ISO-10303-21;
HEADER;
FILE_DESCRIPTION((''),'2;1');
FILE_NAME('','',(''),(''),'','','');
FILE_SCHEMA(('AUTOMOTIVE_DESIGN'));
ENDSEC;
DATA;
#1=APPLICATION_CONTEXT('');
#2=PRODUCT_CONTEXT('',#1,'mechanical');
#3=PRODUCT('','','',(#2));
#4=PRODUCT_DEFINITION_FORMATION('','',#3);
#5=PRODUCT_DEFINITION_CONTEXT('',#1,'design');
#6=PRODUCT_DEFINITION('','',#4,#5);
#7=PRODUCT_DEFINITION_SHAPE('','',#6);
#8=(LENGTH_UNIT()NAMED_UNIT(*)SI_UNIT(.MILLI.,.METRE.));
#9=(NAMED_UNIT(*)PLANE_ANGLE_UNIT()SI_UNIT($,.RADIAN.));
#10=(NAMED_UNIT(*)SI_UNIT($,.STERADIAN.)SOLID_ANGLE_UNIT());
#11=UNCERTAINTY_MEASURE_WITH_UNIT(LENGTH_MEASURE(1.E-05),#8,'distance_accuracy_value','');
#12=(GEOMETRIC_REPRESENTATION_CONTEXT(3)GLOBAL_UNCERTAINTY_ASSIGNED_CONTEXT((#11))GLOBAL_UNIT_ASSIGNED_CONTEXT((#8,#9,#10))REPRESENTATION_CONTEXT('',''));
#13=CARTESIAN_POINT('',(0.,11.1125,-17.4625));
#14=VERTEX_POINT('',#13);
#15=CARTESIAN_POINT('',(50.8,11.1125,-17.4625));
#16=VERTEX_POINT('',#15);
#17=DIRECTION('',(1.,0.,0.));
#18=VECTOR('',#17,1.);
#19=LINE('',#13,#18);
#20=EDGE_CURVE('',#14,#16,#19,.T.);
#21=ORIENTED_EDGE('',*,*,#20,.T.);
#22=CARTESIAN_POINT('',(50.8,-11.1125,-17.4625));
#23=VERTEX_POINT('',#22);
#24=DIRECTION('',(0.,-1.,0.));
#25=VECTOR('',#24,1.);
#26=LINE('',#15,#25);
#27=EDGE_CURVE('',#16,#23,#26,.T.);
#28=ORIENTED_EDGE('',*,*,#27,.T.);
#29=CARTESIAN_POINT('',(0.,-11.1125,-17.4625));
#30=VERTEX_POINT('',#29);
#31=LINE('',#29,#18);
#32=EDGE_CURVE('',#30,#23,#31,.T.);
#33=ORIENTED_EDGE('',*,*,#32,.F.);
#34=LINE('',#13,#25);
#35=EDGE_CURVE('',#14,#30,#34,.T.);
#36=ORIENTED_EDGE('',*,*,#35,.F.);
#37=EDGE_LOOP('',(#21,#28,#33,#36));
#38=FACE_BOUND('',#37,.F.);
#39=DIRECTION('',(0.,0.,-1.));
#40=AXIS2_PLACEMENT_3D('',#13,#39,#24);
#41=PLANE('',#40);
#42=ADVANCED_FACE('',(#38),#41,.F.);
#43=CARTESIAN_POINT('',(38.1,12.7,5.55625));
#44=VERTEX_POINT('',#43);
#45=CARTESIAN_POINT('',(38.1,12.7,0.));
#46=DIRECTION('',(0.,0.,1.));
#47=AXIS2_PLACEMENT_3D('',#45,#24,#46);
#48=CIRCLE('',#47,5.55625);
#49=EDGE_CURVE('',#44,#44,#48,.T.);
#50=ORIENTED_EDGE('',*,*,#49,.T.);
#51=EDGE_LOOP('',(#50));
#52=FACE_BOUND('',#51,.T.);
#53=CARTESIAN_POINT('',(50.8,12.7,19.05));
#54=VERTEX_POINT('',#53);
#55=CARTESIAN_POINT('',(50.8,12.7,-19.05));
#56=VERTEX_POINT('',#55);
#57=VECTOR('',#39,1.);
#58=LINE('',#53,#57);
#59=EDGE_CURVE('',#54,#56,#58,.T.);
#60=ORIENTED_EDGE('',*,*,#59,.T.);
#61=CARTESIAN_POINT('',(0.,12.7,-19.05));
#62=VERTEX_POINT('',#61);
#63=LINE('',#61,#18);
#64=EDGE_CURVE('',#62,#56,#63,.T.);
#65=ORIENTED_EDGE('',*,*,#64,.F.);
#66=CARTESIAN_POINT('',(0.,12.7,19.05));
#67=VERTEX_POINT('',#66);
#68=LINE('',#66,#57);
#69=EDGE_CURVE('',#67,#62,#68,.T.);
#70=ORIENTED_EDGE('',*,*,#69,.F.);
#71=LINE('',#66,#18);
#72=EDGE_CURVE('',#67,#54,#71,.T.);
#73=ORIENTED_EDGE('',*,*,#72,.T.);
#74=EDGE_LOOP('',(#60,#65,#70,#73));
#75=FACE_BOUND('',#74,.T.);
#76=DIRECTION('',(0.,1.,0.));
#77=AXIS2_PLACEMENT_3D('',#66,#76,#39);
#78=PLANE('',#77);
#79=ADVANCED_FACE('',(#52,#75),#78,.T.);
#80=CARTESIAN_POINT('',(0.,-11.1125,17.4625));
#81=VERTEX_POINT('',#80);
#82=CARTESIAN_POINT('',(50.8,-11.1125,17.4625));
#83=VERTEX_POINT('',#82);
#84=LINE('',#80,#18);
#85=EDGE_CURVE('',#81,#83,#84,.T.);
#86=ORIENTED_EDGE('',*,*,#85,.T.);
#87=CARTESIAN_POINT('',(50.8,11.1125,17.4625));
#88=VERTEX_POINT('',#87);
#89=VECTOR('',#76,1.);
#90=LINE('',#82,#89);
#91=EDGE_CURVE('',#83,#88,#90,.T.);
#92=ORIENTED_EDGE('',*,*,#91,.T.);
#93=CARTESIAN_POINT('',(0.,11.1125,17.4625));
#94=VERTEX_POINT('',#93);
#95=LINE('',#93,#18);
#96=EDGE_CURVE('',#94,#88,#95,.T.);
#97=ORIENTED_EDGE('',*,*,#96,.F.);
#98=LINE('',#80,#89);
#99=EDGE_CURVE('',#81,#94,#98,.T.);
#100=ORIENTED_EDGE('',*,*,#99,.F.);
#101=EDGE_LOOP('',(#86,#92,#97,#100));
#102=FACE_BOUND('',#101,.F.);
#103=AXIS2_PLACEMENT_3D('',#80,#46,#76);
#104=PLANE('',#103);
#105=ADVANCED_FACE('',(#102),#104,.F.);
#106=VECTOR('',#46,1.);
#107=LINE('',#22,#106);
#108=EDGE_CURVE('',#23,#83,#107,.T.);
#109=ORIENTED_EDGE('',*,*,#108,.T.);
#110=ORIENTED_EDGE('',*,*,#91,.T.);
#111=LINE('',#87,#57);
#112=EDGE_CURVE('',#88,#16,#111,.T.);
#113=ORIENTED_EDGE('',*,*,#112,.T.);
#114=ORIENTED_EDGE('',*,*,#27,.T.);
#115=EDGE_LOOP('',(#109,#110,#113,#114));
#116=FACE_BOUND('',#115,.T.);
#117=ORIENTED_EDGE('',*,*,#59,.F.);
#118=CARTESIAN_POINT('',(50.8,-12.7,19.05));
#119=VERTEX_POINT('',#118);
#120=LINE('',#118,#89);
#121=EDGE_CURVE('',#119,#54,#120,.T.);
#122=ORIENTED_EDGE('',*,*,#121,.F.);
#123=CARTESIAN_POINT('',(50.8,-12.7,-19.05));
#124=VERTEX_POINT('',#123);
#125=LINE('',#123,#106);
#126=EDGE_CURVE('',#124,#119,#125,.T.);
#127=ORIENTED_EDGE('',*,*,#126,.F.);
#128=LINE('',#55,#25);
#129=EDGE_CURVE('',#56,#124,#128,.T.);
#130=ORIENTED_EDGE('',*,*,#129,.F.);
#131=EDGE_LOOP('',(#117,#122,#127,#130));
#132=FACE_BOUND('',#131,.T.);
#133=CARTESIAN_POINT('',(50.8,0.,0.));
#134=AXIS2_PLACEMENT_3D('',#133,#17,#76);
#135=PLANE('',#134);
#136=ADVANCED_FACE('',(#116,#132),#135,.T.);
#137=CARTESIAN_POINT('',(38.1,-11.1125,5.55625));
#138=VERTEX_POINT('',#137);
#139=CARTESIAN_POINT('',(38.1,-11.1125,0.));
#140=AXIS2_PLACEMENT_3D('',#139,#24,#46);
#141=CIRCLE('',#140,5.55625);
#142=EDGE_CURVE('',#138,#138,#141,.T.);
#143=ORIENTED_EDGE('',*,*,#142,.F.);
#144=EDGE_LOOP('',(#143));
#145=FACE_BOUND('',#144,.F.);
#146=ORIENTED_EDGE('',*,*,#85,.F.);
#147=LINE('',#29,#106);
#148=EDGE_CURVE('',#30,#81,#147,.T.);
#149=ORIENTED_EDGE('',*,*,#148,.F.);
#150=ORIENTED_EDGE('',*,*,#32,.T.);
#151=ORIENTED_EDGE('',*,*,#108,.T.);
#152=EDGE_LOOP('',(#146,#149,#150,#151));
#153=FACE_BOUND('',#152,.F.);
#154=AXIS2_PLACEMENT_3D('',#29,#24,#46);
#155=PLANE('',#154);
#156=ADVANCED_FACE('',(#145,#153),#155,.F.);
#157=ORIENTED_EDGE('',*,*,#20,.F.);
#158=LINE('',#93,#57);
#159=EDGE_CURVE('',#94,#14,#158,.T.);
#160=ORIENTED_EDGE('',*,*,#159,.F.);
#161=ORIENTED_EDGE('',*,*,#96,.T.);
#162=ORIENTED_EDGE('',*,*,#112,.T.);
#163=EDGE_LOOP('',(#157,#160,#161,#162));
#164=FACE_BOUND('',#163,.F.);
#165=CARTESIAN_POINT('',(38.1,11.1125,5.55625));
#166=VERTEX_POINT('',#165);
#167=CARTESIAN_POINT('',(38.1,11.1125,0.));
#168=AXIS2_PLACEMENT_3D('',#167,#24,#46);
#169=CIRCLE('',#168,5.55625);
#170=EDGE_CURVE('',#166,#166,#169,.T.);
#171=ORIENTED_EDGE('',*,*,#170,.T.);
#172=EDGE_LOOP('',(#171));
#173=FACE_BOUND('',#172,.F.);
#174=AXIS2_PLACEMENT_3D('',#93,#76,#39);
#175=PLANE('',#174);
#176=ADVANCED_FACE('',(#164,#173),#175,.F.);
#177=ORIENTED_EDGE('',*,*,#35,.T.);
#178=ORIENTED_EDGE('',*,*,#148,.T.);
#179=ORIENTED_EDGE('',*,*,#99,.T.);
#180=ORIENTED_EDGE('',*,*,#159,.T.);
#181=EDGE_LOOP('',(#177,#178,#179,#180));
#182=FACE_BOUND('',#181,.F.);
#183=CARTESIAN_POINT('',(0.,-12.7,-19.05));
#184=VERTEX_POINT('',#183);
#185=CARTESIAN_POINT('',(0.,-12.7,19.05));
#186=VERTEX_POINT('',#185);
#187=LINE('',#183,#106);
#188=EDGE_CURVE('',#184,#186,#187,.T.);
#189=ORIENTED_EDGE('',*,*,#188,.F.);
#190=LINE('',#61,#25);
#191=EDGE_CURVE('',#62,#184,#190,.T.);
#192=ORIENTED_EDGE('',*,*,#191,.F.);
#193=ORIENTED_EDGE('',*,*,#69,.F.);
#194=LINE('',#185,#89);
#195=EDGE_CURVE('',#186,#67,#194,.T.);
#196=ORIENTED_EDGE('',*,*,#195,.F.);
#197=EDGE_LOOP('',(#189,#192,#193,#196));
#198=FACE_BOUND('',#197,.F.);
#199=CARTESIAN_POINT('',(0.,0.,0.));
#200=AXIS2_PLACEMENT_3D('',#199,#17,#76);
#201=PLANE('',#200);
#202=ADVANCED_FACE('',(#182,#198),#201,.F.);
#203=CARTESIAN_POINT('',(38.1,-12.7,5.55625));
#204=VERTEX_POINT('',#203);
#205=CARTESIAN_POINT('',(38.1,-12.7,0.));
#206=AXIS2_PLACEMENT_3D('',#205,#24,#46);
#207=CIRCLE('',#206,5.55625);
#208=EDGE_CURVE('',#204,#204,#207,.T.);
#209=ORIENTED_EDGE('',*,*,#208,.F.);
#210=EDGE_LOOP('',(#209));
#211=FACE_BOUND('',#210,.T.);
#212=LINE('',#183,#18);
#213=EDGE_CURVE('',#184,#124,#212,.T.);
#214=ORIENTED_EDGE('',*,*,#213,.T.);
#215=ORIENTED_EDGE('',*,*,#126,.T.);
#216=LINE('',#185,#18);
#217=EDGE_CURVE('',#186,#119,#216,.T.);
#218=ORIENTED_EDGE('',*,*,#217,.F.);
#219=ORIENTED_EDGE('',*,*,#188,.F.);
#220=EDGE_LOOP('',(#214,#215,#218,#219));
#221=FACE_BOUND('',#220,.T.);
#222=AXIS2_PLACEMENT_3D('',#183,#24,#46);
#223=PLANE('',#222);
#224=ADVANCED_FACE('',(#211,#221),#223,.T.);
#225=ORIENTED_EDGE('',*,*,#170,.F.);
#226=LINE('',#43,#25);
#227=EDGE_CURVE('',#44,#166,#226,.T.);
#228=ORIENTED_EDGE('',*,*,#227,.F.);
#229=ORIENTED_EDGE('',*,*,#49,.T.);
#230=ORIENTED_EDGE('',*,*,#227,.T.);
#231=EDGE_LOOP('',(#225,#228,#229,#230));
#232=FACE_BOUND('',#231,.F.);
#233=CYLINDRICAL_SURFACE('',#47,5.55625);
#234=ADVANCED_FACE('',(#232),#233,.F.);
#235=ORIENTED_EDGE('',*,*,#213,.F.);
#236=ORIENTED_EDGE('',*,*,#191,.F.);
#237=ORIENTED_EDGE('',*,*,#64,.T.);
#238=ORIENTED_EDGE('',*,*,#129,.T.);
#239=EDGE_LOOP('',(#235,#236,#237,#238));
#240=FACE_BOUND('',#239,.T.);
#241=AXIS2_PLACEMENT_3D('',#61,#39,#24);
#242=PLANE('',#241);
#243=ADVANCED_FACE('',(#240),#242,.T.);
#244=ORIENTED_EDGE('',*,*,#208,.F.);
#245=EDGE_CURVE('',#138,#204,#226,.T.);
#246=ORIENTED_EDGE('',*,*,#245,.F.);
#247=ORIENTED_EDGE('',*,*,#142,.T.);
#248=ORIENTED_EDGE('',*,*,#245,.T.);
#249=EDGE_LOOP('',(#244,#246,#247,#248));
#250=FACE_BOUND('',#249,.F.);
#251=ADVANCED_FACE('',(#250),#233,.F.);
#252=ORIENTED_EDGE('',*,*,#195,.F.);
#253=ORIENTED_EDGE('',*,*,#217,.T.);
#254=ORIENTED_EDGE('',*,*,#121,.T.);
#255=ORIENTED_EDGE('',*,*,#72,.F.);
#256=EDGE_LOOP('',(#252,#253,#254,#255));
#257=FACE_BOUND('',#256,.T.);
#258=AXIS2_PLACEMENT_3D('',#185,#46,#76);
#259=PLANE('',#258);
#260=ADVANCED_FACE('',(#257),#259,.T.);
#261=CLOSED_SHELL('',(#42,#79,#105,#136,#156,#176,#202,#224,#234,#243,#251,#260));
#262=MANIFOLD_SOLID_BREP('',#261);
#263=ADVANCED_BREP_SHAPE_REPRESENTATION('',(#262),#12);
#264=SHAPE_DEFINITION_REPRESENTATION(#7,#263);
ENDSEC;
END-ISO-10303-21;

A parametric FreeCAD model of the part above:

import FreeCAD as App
import Part
import Sketcher
from FreeCAD import Vector
Q = App.Units.Quantity


def add_polygon(sketch, points):
    """Adds a closed chain of lines whose ends are joined by coincident constraints."""
    first, n = sketch.GeometryCount, len(points)
    for a, b in zip(points, points[1:] + points[:1]):
        sketch.addGeometry(Part.LineSegment(App.Vector(*a, 0), App.Vector(*b, 0)), False)
    for i in range(n):
        sketch.addConstraint(Sketcher.Constraint("Coincident", first + i, 2, first + (i + 1) % n, 1))

doc = App.newDocument("Part")
params = doc.addObject("Spreadsheet::Sheet", "Params")
for row, (alias, value) in enumerate([
    ("sketch1_width", "1 in"),
    ("sketch1_height", "1.5 in"),
    ("pad1_length", "2 in"),
    ("sketch2_diameter", "0.4375 in"),
    ("hole_diameter", "0.4375 in"),
], start=1):
    params.set(f"A{row}", alias)
    params.set(f"B{row}", "=" + value)
    params.setAlias(f"B{row}", alias)

body = doc.addObject("PartDesign::Body", "Body")

# Sketch on YZ plane
sketch1 = body.newObject("Sketcher::SketchObject", "Sketch")
sketch1.AttachmentSupport = (doc.getObject("YZ_Plane"), [""])
sketch1.MapMode = "FlatFace"
add_polygon(sketch1, [(13, 19), (-13, 19), (-13, -19), (13, -19)])  # lines 0-3
add_polygon(sketch1, [(-11, -17), (-11, 17), (11, 17), (11, -17)])  # lines 4-7
sketch1.addConstraint([
    Sketcher.Constraint("Horizontal", 0),
    Sketcher.Constraint("Vertical", 1),
    Sketcher.Constraint("Horizontal", 2),
    Sketcher.Constraint("Vertical", 3),
    Sketcher.Constraint("Vertical", 4),
    Sketcher.Constraint("Horizontal", 5),
    Sketcher.Constraint("Vertical", 6),
    Sketcher.Constraint("Horizontal", 7),
    Sketcher.Constraint("Symmetric", 0, 2, 2, 2, -1, 1),
    Sketcher.Constraint("Symmetric", 4, 2, 6, 2, -1, 1),
    Sketcher.Constraint("DistanceX", 0, 2, 0, 1, Q("1 in")),
    Sketcher.Constraint("DistanceY", 1, 2, 1, 1, Q("1.5 in")),
    Sketcher.Constraint("DistanceX", 0, 2, 4, 2, Q("0.0625 in")),
    Sketcher.Constraint("DistanceY", 4, 2, 0, 2, Q("0.0625 in")),
])
sketch1.setExpression("Constraints[18]", "Params.sketch1_width")
sketch1.setExpression("Constraints[19]", "Params.sketch1_height")
pad1 = body.newObject("PartDesign::Pad", "Pad")
pad1.Profile = sketch1
pad1.setExpression("Length", "Params.pad1_length")

# Sketch on XZ plane
sketch2 = body.newObject("Sketcher::SketchObject", "Sketch001")
sketch2.AttachmentSupport = (doc.getObject("XZ_Plane"), [""])
sketch2.MapMode = "FlatFace"
sketch2.AttachmentOffset = App.Placement(Vector(0, 0, -0.5 * 25.4), App.Rotation())
sketch2.addGeometry(Part.Circle(Vector(38, 0, 0), Vector(0, 0, 1), 6), False)
sketch2.addConstraint([
    Sketcher.Constraint("PointOnObject", 0, 3, -1),
    Sketcher.Constraint("Diameter", 0, Q("0.4375 in")),
    Sketcher.Constraint("DistanceX", -1, 1, 0, 3, Q("1.5 in")),
])
sketch2.setExpression("Constraints[1]", "Params.sketch2_diameter")
doc.recompute()
hole = body.newObject("PartDesign::Hole", "Hole")
hole.Profile = sketch2
hole.ThreadType = "None"
hole.setExpression("Diameter", "Params.hole_diameter")
hole.DepthType = "ThroughAll"
hole.Reversed = True

doc.recompute()
